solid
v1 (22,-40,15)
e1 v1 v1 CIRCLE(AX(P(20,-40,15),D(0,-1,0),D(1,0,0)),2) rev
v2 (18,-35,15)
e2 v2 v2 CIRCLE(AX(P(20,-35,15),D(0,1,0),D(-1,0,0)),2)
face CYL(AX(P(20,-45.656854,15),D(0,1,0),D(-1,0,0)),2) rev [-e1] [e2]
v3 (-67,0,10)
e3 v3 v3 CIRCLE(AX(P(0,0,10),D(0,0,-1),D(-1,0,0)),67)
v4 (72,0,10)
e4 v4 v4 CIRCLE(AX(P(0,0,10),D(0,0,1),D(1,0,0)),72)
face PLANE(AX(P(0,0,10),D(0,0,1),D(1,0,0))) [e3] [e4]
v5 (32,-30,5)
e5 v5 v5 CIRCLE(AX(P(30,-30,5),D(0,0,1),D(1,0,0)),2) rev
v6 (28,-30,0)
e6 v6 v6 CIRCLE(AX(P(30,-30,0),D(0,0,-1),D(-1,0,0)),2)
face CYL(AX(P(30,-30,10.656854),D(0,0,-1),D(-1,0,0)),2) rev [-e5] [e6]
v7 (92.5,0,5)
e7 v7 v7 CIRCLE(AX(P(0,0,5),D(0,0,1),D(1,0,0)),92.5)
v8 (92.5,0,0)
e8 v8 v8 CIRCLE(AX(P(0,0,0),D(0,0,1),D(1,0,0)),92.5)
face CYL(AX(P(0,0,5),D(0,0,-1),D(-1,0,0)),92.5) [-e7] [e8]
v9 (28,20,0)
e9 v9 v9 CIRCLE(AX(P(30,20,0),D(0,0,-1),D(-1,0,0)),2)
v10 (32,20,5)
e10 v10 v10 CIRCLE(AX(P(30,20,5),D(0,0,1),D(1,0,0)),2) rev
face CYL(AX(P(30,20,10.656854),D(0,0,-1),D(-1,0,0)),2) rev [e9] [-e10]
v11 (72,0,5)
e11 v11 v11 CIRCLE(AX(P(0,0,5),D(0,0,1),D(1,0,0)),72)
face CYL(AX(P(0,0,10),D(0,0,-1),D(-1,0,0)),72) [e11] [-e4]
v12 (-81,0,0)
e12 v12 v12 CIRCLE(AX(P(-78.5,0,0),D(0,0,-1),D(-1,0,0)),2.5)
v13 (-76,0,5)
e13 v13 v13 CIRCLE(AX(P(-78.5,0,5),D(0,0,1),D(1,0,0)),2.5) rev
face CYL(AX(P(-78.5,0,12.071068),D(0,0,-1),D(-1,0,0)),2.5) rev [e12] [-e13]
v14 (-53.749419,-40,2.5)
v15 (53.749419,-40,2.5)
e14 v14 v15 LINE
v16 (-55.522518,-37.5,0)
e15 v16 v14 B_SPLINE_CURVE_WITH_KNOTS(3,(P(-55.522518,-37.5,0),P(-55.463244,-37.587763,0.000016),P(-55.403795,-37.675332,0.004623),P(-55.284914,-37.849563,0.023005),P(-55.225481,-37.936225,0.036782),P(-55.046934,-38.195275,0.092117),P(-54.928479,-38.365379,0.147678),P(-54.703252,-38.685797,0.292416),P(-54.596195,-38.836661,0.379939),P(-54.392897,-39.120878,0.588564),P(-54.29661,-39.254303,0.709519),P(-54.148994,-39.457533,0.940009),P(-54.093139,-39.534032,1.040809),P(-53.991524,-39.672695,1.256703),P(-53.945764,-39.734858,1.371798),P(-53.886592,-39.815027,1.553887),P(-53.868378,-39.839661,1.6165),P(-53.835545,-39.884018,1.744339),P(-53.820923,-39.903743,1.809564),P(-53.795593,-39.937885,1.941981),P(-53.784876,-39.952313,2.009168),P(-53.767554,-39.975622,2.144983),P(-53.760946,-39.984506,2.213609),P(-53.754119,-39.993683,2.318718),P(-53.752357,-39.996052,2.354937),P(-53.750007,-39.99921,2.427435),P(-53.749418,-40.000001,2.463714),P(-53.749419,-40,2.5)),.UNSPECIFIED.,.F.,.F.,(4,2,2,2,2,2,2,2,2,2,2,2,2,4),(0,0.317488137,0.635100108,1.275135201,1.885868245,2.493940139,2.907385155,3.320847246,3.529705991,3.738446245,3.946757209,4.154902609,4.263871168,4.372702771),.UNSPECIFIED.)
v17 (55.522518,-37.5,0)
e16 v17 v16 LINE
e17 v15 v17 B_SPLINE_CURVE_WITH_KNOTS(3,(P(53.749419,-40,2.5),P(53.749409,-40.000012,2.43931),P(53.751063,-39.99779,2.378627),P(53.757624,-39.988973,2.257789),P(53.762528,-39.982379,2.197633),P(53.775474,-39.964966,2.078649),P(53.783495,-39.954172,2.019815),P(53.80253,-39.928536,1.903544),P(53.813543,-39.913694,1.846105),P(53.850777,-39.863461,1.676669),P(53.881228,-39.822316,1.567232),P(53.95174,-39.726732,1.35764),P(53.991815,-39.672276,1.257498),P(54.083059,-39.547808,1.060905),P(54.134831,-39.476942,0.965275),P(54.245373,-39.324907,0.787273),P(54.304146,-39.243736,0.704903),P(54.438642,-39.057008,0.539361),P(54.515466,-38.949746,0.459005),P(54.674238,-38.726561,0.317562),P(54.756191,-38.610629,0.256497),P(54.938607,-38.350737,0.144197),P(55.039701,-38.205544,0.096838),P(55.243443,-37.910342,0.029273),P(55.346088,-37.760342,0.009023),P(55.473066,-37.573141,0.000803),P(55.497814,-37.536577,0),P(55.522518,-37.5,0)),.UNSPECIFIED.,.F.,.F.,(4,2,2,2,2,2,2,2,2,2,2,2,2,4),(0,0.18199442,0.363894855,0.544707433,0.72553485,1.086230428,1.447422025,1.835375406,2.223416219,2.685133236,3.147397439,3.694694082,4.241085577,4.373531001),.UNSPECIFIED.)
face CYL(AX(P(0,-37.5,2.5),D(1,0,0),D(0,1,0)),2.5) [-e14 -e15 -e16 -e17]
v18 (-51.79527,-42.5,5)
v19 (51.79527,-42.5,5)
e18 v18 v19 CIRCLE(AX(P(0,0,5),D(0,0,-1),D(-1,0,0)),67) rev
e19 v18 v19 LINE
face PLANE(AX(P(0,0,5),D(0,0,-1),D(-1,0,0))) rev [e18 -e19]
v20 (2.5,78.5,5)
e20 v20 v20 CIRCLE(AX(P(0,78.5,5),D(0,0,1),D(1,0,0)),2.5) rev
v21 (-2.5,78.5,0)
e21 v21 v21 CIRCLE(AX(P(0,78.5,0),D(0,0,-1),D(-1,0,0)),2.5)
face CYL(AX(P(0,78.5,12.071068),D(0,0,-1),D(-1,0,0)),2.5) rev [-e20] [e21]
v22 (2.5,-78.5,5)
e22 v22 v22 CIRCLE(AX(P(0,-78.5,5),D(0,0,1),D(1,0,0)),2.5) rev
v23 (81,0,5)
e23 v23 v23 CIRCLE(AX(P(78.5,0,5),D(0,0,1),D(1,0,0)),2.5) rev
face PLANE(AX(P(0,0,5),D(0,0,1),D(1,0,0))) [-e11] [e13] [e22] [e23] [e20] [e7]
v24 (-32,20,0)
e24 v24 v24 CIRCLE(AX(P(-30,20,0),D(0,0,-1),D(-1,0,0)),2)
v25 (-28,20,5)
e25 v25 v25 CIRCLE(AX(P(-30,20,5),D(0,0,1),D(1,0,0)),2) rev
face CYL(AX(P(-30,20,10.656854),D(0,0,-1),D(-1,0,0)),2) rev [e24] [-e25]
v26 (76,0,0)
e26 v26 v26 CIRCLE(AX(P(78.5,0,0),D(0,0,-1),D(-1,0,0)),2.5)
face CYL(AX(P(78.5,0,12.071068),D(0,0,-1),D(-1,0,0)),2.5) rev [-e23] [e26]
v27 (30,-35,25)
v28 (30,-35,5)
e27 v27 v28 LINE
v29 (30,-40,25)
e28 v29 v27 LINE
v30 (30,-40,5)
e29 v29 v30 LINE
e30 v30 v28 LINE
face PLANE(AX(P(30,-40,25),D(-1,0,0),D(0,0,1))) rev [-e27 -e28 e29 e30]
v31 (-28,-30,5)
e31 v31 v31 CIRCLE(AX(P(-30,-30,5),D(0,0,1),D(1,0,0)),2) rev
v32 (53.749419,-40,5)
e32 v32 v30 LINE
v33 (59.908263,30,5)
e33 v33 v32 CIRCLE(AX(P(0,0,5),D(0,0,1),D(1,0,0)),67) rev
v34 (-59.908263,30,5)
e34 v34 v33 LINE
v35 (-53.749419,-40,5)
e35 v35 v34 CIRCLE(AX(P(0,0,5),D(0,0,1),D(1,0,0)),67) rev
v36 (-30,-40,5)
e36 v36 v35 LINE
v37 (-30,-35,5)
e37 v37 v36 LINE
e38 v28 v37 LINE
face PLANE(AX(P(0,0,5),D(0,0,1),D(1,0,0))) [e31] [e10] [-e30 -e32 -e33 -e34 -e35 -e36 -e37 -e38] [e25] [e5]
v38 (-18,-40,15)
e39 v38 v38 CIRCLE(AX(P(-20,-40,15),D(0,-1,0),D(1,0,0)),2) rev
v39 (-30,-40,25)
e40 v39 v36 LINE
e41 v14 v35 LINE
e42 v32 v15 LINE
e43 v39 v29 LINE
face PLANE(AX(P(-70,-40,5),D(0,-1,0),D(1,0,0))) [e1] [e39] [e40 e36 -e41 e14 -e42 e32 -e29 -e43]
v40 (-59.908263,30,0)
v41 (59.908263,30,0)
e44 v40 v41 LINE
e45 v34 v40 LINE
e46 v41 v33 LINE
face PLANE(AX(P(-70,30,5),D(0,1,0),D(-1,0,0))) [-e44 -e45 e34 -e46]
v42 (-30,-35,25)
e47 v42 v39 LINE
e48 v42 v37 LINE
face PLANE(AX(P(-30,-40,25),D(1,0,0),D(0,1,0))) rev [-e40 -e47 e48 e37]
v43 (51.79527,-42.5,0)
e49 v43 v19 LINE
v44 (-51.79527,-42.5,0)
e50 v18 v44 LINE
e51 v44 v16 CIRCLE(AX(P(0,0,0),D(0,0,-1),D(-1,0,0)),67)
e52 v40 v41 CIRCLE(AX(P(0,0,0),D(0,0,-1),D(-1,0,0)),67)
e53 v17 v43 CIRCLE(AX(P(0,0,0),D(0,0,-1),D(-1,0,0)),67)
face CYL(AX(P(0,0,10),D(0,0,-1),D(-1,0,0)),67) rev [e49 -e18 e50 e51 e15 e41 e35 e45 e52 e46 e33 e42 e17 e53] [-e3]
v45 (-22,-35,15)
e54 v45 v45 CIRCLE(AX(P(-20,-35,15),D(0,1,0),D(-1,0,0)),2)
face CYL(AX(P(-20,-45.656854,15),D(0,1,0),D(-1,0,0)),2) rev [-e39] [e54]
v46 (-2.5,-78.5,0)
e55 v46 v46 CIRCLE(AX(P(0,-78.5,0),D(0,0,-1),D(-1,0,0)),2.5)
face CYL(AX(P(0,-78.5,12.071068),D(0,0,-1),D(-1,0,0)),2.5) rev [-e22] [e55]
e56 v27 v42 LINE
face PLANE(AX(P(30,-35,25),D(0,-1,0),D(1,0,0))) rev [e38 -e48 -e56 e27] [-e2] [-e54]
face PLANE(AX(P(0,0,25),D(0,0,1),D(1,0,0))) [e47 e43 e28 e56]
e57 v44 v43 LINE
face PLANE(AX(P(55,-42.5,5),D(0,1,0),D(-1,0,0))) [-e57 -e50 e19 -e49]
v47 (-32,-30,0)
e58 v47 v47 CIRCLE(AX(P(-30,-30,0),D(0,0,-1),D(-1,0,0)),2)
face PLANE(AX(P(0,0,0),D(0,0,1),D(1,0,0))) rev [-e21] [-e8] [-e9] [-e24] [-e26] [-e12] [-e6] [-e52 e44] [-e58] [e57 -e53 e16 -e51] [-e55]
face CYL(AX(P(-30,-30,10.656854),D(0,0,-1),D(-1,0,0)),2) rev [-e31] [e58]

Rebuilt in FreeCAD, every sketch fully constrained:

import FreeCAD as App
import Part
import Sketcher
from FreeCAD import Vector


def edges_at(feature, points):
    """Names of the edges that pass closest to the given points."""
    edges = feature.Shape.Edges
    near = lambda p: min(range(len(edges)), key=lambda i: edges[i].distToShape(Part.Vertex(*p))[0])
    return sorted({f"Edge{near(p) + 1}" for p in points})


def add_polygon(sketch, points):
    """Adds a closed chain of lines whose ends are joined by coincident constraints."""
    first, n = sketch.GeometryCount, len(points)
    for a, b in zip(points, points[1:] + points[:1]):
        sketch.addGeometry(Part.LineSegment(App.Vector(*a, 0), App.Vector(*b, 0)), False)
    for i in range(n):
        sketch.addConstraint(Sketcher.Constraint("Coincident", first + i, 2, first + (i + 1) % n, 1))

doc = App.newDocument("Part")
body = doc.addObject("PartDesign::Body", "Body")

# Sketch on XY plane
sketch1 = body.newObject("Sketcher::SketchObject", "Sketch")
sketch1.AttachmentSupport = (doc.getObject("XY_Plane"), [""])
sketch1.MapMode = "FlatFace"
sketch1.addGeometry(Part.Circle(Vector(0, 0, 0), Vector(0, 0, 1), 92.5), False)
sketch1.addConstraint([
    Sketcher.Constraint("Coincident", 0, 3, -1, 1),
    Sketcher.Constraint("Diameter", 0, 185.0),
])
pad1 = body.newObject("PartDesign::Pad", "Pad")
pad1.Profile = sketch1
pad1.Length = 5

# Sketch on XY plane
sketch2 = body.newObject("Sketcher::SketchObject", "Sketch001")
sketch2.AttachmentSupport = (doc.getObject("XY_Plane"), [""])
sketch2.MapMode = "FlatFace"
sketch2.AttachmentOffset = App.Placement(Vector(0, 0, 5), App.Rotation())
sketch2.addGeometry(Part.Circle(Vector(0, 0, 0), Vector(0, 0, 1), 72), False)
sketch2.addConstraint([
    Sketcher.Constraint("Coincident", 0, 3, -1, 1),
    Sketcher.Constraint("Diameter", 0, 144.0),
])
pad2 = body.newObject("PartDesign::Pad", "Pad001")
pad2.Profile = sketch2
pad2.Length = 5

# Sketch on XY plane
sketch3 = body.newObject("Sketcher::SketchObject", "Sketch002")
sketch3.AttachmentSupport = (doc.getObject("XY_Plane"), [""])
sketch3.MapMode = "FlatFace"
sketch3.addGeometry(Part.Circle(Vector(0, 0, 0), Vector(0, 0, 1), 67), False)
sketch3.addConstraint([
    Sketcher.Constraint("Coincident", 0, 3, -1, 1),
    Sketcher.Constraint("Diameter", 0, 134.0),
])
pocket1 = body.newObject("PartDesign::Pocket", "Pocket")
pocket1.Profile = sketch3
pocket1.Type = "ThroughAll"
pocket1.Reversed = True

# Sketch on XY plane
sketch4 = body.newObject("Sketcher::SketchObject", "Sketch003")
sketch4.AttachmentSupport = (doc.getObject("XY_Plane"), [""])
sketch4.MapMode = "FlatFace"
add_polygon(sketch4, [(70, 30), (70, -40), (-70, -40), (-70, 30)])  # lines 0-3
sketch4.addConstraint([
    Sketcher.Constraint("Vertical", 0),
    Sketcher.Constraint("Horizontal", 1),
    Sketcher.Constraint("Vertical", 2),
    Sketcher.Constraint("Horizontal", 3),
    Sketcher.Constraint("DistanceX", 1, 2, 1, 1, 140.0),
    Sketcher.Constraint("DistanceY", 0, 2, 0, 1, 70.0),
    Sketcher.Constraint("DistanceX", -1, 1, 0, 2, 70.0),
    Sketcher.Constraint("DistanceY", 0, 2, -1, 1, 40.0),
])
pad3 = body.newObject("PartDesign::Pad", "Pad002")
pad3.Profile = sketch4
pad3.Length = 5

# Sketch on XY plane
sketch5 = body.newObject("Sketcher::SketchObject", "Sketch004")
sketch5.AttachmentSupport = (doc.getObject("XY_Plane"), [""])
sketch5.MapMode = "FlatFace"
sketch5.AttachmentOffset = App.Placement(Vector(0, 0, 5), App.Rotation())
add_polygon(sketch5, [(-30, -35), (-30, -40), (30, -40), (30, -35)])  # lines 0-3
sketch5.addConstraint([
    Sketcher.Constraint("Vertical", 0),
    Sketcher.Constraint("Horizontal", 1),
    Sketcher.Constraint("Vertical", 2),
    Sketcher.Constraint("Horizontal", 3),
    Sketcher.Constraint("DistanceX", 1, 1, 1, 2, 60.0),
    Sketcher.Constraint("DistanceY", 0, 2, 0, 1, 5.0),
    Sketcher.Constraint("DistanceX", 0, 2, -1, 1, 30.0),
    Sketcher.Constraint("DistanceY", 0, 2, -1, 1, 40.0),
])
pad4 = body.newObject("PartDesign::Pad", "Pad003")
pad4.Profile = sketch5
pad4.Length = 20
doc.recompute()

fillet = body.newObject("PartDesign::Fillet", "Fillet")
fillet.Base = (pad4, edges_at(pad4, [(0, -40, 0)]))
fillet.Radius = 2.5

# Sketch on XY plane
sketch6 = body.newObject("Sketcher::SketchObject", "Sketch005")
sketch6.AttachmentSupport = (doc.getObject("XY_Plane"), [""])
sketch6.MapMode = "FlatFace"
add_polygon(sketch6, [(55, -42.5), (55, -67.5), (-55, -67.5), (-55, -42.5)])  # lines 0-3
sketch6.addConstraint([
    Sketcher.Constraint("Vertical", 0),
    Sketcher.Constraint("Horizontal", 1),
    Sketcher.Constraint("Vertical", 2),
    Sketcher.Constraint("Horizontal", 3),
    Sketcher.Constraint("DistanceX", 1, 2, 1, 1, 110.0),
    Sketcher.Constraint("DistanceY", 0, 2, 0, 1, 25.0),
    Sketcher.Constraint("DistanceX", -1, 1, 0, 2, 55.0),
    Sketcher.Constraint("DistanceY", 0, 2, -1, 1, 67.5),
])
pad5 = body.newObject("PartDesign::Pad", "Pad004")
pad5.Profile = sketch6
pad5.Length = 5

# Sketch on XY plane
sketch7 = body.newObject("Sketcher::SketchObject", "Sketch006")
sketch7.AttachmentSupport = (doc.getObject("XY_Plane"), [""])
sketch7.MapMode = "FlatFace"
sketch7.addGeometry([
    Part.Circle(Vector(30, -30, 0), Vector(0, 0, 1), 2),
    Part.Circle(Vector(30, 20, 0), Vector(0, 0, 1), 2),
    Part.Circle(Vector(-30, 20, 0), Vector(0, 0, 1), 2),
    Part.Circle(Vector(-30, -30, 0), Vector(0, 0, 1), 2),
], False)
sketch7.addConstraint([
    Sketcher.Constraint("Equal", 0, 1),
    Sketcher.Constraint("Equal", 1, 2),
    Sketcher.Constraint("Equal", 2, 3),
    Sketcher.Constraint("Symmetric", 1, 3, 2, 3, -2),
    Sketcher.Constraint("Symmetric", 0, 3, 3, 3, -2),
    Sketcher.Constraint("Vertical", 0, 3, 1, 3),
    Sketcher.Constraint("Diameter", 0, 4.0),
    Sketcher.Constraint("DistanceX", -1, 1, 0, 3, 30.0),
    Sketcher.Constraint("DistanceY", 0, 3, -1, 1, 30.0),
    Sketcher.Constraint("DistanceY", -1, 1, 1, 3, 20.0),
])
pocket2 = body.newObject("PartDesign::Pocket", "Pocket001")
pocket2.Profile = sketch7
pocket2.Length = 5
pocket2.Reversed = True

# Sketch on XY plane
sketch8 = body.newObject("Sketcher::SketchObject", "Sketch007")
sketch8.AttachmentSupport = (doc.getObject("XY_Plane"), [""])
sketch8.MapMode = "FlatFace"
sketch8.addGeometry([
    Part.Circle(Vector(0, -78.5, 0), Vector(0, 0, 1), 2.5),
    Part.Circle(Vector(78.5, 0, 0), Vector(0, 0, 1), 2.5),
    Part.Circle(Vector(0, 78.5, 0), Vector(0, 0, 1), 2.5),
    Part.Circle(Vector(-78.5, 0, 0), Vector(0, 0, 1), 2.5),
], False)
sketch8.addConstraint([
    Sketcher.Constraint("Equal", 0, 1),
    Sketcher.Constraint("Equal", 1, 2),
    Sketcher.Constraint("Equal", 2, 3),
    Sketcher.Constraint("Symmetric", 0, 3, 2, 3, -1, 1),
    Sketcher.Constraint("Symmetric", 1, 3, 3, 3, -1, 1),
    Sketcher.Constraint("PointOnObject", 0, 3, -2),
    Sketcher.Constraint("PointOnObject", 1, 3, -1),
    Sketcher.Constraint("Diameter", 0, 5.0),
    Sketcher.Constraint("DistanceY", 0, 3, 2, 3, 157.0),
    Sketcher.Constraint("DistanceX", 3, 3, 1, 3, 157.0),
])
pocket3 = body.newObject("PartDesign::Pocket", "Pocket002")
pocket3.Profile = sketch8
pocket3.Length = 5
pocket3.Reversed = True

# Sketch on XZ plane
sketch9 = body.newObject("Sketcher::SketchObject", "Sketch008")
sketch9.AttachmentSupport = (doc.getObject("XZ_Plane"), [""])
sketch9.MapMode = "FlatFace"
sketch9.AttachmentOffset = App.Placement(Vector(0, 0, 35), App.Rotation())
sketch9.addGeometry([
    Part.Circle(Vector(-20, 15, 0), Vector(0, 0, 1), 2),
    Part.Circle(Vector(20, 15, 0), Vector(0, 0, 1), 2),
], False)
sketch9.addConstraint([
    Sketcher.Constraint("Equal", 0, 1),
    Sketcher.Constraint("Symmetric", 0, 3, 1, 3, -2),
    Sketcher.Constraint("Diameter", 0, 4.0),
    Sketcher.Constraint("DistanceX", 0, 3, -1, 1, 20.0),
    Sketcher.Constraint("DistanceY", -1, 1, 0, 3, 15.0),
])
pocket4 = body.newObject("PartDesign::Pocket", "Pocket003")
pocket4.Profile = sketch9
pocket4.Length = 5
pocket4.Reversed = True

doc.recompute()
